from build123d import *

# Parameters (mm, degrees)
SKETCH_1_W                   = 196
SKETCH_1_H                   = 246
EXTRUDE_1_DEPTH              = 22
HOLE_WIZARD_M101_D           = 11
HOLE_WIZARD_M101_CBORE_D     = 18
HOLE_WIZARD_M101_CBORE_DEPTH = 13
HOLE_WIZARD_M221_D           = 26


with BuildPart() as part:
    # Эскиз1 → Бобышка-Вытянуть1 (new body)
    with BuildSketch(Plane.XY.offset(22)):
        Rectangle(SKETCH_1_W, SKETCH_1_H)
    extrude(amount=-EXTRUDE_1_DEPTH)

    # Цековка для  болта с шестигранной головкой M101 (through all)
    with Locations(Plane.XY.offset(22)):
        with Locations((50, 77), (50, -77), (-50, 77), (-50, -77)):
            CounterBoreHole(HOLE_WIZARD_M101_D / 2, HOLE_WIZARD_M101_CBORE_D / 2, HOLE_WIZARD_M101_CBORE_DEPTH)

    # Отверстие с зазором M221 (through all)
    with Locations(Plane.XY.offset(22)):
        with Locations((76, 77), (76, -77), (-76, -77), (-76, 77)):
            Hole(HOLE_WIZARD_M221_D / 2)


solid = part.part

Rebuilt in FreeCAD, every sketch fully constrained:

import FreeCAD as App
import Part
import Sketcher
Q = App.Units.Quantity


def add_polygon(sketch, points):
    """Adds a closed chain of lines whose ends are joined by coincident constraints."""
    first, n = sketch.GeometryCount, len(points)
    for a, b in zip(points, points[1:] + points[:1]):
        sketch.addGeometry(Part.LineSegment(App.Vector(*a, 0), App.Vector(*b, 0)), False)
    for i in range(n):
        sketch.addConstraint(Sketcher.Constraint("Coincident", first + i, 2, first + (i + 1) % n, 1))

doc = App.newDocument("Part")
body = doc.addObject("PartDesign::Body", "Body")

sketch1 = doc.addObject("Sketcher::SketchObject", "Sketch")
body.addObject(sketch1)
sketch1.AttachmentSupport = (doc.XY_Plane, [""])
sketch1.MapMode = "FlatFace"
sketch1.AttachmentOffset = App.Placement(App.Vector(0, 0, 22), App.Rotation())
add_polygon(sketch1, [(-98, 123), (-98, -123), (98, -123), (98, 123)])
sketch1.addConstraint(Sketcher.Constraint("Vertical", 0))
sketch1.addConstraint(Sketcher.Constraint("Horizontal", 1))
sketch1.addConstraint(Sketcher.Constraint("Vertical", 2))
sketch1.addConstraint(Sketcher.Constraint("Horizontal", 3))
sketch1.addConstraint(Sketcher.Constraint("Symmetric", 0, 2, 2, 2, -1, 1))
sketch1.addConstraint(Sketcher.Constraint("DistanceX", 1, 1, 1, 2, Q("196 mm")))
sketch1.addConstraint(Sketcher.Constraint("DistanceY", 0, 2, 0, 1, Q("246 mm")))
pad1 = doc.addObject("PartDesign::Pad", "Pad")
body.addObject(pad1)
pad1.Profile = sketch1
pad1.Length = 22
pad1.Reversed = True

sketch2 = doc.addObject("Sketcher::SketchObject", "Sketch001")
body.addObject(sketch2)
sketch2.AttachmentSupport = (doc.XY_Plane, [""])
sketch2.MapMode = "FlatFace"
sketch2.AttachmentOffset = App.Placement(App.Vector(0, 0, 22), App.Rotation())
sketch2.addGeometry(Part.Circle(App.Vector(50, 77, 0), App.Vector(0, 0, 1), 5.5), False)
sketch2.addGeometry(Part.Circle(App.Vector(50, -77, 0), App.Vector(0, 0, 1), 5.5), False)
sketch2.addGeometry(Part.Circle(App.Vector(-50, 77, 0), App.Vector(0, 0, 1), 5.5), False)
sketch2.addGeometry(Part.Circle(App.Vector(-50, -77, 0), App.Vector(0, 0, 1), 5.5), False)
sketch2.addConstraint(Sketcher.Constraint("Equal", 0, 1))
sketch2.addConstraint(Sketcher.Constraint("Equal", 1, 2))
sketch2.addConstraint(Sketcher.Constraint("Equal", 2, 3))
sketch2.addConstraint(Sketcher.Constraint("Symmetric", 1, 3, 2, 3, -1, 1))
sketch2.addConstraint(Sketcher.Constraint("Symmetric", 0, 3, 3, 3, -1, 1))
sketch2.addConstraint(Sketcher.Constraint("Symmetric", 0, 3, 2, 3, -2))
sketch2.addConstraint(Sketcher.Constraint("Diameter", 0, Q("11 mm")))
sketch2.addConstraint(Sketcher.Constraint("DistanceX", -1, 1, 0, 3, Q("50 mm")))
sketch2.addConstraint(Sketcher.Constraint("DistanceY", -1, 1, 0, 3, Q("77 mm")))
doc.recompute()
hole = doc.addObject("PartDesign::Hole", "Hole")
body.addObject(hole)
hole.Profile = sketch2
hole.ThreadType = "None"
hole.Diameter = 11
hole.DepthType = "ThroughAll"
hole.HoleCutType = "Counterbore"
hole.HoleCutDiameter = 18
hole.HoleCutDepth = 13

sketch3 = doc.addObject("Sketcher::SketchObject", "Sketch002")
body.addObject(sketch3)
sketch3.AttachmentSupport = (doc.XY_Plane, [""])
sketch3.MapMode = "FlatFace"
sketch3.AttachmentOffset = App.Placement(App.Vector(0, 0, 22), App.Rotation())
sketch3.addGeometry(Part.Circle(App.Vector(76, 77, 0), App.Vector(0, 0, 1), 13), False)
sketch3.addGeometry(Part.Circle(App.Vector(76, -77, 0), App.Vector(0, 0, 1), 13), False)
sketch3.addGeometry(Part.Circle(App.Vector(-76, -77, 0), App.Vector(0, 0, 1), 13), False)
sketch3.addGeometry(Part.Circle(App.Vector(-76, 77, 0), App.Vector(0, 0, 1), 13), False)
sketch3.addConstraint(Sketcher.Constraint("Equal", 0, 1))
sketch3.addConstraint(Sketcher.Constraint("Equal", 1, 2))
sketch3.addConstraint(Sketcher.Constraint("Equal", 2, 3))
sketch3.addConstraint(Sketcher.Constraint("Symmetric", 0, 3, 2, 3, -1, 1))
sketch3.addConstraint(Sketcher.Constraint("Symmetric", 1, 3, 3, 3, -1, 1))
sketch3.addConstraint(Sketcher.Constraint("Symmetric", 1, 3, 2, 3, -2))
sketch3.addConstraint(Sketcher.Constraint("Diameter", 0, Q("26 mm")))
sketch3.addConstraint(Sketcher.Constraint("DistanceX", -1, 1, 0, 3, Q("76 mm")))
sketch3.addConstraint(Sketcher.Constraint("DistanceY", -1, 1, 0, 3, Q("77 mm")))
doc.recompute()
hole2 = doc.addObject("PartDesign::Hole", "Hole001")
body.addObject(hole2)
hole2.Profile = sketch3
hole2.ThreadType = "None"
hole2.Diameter = 26
hole2.DepthType = "ThroughAll"

doc.recompute()
